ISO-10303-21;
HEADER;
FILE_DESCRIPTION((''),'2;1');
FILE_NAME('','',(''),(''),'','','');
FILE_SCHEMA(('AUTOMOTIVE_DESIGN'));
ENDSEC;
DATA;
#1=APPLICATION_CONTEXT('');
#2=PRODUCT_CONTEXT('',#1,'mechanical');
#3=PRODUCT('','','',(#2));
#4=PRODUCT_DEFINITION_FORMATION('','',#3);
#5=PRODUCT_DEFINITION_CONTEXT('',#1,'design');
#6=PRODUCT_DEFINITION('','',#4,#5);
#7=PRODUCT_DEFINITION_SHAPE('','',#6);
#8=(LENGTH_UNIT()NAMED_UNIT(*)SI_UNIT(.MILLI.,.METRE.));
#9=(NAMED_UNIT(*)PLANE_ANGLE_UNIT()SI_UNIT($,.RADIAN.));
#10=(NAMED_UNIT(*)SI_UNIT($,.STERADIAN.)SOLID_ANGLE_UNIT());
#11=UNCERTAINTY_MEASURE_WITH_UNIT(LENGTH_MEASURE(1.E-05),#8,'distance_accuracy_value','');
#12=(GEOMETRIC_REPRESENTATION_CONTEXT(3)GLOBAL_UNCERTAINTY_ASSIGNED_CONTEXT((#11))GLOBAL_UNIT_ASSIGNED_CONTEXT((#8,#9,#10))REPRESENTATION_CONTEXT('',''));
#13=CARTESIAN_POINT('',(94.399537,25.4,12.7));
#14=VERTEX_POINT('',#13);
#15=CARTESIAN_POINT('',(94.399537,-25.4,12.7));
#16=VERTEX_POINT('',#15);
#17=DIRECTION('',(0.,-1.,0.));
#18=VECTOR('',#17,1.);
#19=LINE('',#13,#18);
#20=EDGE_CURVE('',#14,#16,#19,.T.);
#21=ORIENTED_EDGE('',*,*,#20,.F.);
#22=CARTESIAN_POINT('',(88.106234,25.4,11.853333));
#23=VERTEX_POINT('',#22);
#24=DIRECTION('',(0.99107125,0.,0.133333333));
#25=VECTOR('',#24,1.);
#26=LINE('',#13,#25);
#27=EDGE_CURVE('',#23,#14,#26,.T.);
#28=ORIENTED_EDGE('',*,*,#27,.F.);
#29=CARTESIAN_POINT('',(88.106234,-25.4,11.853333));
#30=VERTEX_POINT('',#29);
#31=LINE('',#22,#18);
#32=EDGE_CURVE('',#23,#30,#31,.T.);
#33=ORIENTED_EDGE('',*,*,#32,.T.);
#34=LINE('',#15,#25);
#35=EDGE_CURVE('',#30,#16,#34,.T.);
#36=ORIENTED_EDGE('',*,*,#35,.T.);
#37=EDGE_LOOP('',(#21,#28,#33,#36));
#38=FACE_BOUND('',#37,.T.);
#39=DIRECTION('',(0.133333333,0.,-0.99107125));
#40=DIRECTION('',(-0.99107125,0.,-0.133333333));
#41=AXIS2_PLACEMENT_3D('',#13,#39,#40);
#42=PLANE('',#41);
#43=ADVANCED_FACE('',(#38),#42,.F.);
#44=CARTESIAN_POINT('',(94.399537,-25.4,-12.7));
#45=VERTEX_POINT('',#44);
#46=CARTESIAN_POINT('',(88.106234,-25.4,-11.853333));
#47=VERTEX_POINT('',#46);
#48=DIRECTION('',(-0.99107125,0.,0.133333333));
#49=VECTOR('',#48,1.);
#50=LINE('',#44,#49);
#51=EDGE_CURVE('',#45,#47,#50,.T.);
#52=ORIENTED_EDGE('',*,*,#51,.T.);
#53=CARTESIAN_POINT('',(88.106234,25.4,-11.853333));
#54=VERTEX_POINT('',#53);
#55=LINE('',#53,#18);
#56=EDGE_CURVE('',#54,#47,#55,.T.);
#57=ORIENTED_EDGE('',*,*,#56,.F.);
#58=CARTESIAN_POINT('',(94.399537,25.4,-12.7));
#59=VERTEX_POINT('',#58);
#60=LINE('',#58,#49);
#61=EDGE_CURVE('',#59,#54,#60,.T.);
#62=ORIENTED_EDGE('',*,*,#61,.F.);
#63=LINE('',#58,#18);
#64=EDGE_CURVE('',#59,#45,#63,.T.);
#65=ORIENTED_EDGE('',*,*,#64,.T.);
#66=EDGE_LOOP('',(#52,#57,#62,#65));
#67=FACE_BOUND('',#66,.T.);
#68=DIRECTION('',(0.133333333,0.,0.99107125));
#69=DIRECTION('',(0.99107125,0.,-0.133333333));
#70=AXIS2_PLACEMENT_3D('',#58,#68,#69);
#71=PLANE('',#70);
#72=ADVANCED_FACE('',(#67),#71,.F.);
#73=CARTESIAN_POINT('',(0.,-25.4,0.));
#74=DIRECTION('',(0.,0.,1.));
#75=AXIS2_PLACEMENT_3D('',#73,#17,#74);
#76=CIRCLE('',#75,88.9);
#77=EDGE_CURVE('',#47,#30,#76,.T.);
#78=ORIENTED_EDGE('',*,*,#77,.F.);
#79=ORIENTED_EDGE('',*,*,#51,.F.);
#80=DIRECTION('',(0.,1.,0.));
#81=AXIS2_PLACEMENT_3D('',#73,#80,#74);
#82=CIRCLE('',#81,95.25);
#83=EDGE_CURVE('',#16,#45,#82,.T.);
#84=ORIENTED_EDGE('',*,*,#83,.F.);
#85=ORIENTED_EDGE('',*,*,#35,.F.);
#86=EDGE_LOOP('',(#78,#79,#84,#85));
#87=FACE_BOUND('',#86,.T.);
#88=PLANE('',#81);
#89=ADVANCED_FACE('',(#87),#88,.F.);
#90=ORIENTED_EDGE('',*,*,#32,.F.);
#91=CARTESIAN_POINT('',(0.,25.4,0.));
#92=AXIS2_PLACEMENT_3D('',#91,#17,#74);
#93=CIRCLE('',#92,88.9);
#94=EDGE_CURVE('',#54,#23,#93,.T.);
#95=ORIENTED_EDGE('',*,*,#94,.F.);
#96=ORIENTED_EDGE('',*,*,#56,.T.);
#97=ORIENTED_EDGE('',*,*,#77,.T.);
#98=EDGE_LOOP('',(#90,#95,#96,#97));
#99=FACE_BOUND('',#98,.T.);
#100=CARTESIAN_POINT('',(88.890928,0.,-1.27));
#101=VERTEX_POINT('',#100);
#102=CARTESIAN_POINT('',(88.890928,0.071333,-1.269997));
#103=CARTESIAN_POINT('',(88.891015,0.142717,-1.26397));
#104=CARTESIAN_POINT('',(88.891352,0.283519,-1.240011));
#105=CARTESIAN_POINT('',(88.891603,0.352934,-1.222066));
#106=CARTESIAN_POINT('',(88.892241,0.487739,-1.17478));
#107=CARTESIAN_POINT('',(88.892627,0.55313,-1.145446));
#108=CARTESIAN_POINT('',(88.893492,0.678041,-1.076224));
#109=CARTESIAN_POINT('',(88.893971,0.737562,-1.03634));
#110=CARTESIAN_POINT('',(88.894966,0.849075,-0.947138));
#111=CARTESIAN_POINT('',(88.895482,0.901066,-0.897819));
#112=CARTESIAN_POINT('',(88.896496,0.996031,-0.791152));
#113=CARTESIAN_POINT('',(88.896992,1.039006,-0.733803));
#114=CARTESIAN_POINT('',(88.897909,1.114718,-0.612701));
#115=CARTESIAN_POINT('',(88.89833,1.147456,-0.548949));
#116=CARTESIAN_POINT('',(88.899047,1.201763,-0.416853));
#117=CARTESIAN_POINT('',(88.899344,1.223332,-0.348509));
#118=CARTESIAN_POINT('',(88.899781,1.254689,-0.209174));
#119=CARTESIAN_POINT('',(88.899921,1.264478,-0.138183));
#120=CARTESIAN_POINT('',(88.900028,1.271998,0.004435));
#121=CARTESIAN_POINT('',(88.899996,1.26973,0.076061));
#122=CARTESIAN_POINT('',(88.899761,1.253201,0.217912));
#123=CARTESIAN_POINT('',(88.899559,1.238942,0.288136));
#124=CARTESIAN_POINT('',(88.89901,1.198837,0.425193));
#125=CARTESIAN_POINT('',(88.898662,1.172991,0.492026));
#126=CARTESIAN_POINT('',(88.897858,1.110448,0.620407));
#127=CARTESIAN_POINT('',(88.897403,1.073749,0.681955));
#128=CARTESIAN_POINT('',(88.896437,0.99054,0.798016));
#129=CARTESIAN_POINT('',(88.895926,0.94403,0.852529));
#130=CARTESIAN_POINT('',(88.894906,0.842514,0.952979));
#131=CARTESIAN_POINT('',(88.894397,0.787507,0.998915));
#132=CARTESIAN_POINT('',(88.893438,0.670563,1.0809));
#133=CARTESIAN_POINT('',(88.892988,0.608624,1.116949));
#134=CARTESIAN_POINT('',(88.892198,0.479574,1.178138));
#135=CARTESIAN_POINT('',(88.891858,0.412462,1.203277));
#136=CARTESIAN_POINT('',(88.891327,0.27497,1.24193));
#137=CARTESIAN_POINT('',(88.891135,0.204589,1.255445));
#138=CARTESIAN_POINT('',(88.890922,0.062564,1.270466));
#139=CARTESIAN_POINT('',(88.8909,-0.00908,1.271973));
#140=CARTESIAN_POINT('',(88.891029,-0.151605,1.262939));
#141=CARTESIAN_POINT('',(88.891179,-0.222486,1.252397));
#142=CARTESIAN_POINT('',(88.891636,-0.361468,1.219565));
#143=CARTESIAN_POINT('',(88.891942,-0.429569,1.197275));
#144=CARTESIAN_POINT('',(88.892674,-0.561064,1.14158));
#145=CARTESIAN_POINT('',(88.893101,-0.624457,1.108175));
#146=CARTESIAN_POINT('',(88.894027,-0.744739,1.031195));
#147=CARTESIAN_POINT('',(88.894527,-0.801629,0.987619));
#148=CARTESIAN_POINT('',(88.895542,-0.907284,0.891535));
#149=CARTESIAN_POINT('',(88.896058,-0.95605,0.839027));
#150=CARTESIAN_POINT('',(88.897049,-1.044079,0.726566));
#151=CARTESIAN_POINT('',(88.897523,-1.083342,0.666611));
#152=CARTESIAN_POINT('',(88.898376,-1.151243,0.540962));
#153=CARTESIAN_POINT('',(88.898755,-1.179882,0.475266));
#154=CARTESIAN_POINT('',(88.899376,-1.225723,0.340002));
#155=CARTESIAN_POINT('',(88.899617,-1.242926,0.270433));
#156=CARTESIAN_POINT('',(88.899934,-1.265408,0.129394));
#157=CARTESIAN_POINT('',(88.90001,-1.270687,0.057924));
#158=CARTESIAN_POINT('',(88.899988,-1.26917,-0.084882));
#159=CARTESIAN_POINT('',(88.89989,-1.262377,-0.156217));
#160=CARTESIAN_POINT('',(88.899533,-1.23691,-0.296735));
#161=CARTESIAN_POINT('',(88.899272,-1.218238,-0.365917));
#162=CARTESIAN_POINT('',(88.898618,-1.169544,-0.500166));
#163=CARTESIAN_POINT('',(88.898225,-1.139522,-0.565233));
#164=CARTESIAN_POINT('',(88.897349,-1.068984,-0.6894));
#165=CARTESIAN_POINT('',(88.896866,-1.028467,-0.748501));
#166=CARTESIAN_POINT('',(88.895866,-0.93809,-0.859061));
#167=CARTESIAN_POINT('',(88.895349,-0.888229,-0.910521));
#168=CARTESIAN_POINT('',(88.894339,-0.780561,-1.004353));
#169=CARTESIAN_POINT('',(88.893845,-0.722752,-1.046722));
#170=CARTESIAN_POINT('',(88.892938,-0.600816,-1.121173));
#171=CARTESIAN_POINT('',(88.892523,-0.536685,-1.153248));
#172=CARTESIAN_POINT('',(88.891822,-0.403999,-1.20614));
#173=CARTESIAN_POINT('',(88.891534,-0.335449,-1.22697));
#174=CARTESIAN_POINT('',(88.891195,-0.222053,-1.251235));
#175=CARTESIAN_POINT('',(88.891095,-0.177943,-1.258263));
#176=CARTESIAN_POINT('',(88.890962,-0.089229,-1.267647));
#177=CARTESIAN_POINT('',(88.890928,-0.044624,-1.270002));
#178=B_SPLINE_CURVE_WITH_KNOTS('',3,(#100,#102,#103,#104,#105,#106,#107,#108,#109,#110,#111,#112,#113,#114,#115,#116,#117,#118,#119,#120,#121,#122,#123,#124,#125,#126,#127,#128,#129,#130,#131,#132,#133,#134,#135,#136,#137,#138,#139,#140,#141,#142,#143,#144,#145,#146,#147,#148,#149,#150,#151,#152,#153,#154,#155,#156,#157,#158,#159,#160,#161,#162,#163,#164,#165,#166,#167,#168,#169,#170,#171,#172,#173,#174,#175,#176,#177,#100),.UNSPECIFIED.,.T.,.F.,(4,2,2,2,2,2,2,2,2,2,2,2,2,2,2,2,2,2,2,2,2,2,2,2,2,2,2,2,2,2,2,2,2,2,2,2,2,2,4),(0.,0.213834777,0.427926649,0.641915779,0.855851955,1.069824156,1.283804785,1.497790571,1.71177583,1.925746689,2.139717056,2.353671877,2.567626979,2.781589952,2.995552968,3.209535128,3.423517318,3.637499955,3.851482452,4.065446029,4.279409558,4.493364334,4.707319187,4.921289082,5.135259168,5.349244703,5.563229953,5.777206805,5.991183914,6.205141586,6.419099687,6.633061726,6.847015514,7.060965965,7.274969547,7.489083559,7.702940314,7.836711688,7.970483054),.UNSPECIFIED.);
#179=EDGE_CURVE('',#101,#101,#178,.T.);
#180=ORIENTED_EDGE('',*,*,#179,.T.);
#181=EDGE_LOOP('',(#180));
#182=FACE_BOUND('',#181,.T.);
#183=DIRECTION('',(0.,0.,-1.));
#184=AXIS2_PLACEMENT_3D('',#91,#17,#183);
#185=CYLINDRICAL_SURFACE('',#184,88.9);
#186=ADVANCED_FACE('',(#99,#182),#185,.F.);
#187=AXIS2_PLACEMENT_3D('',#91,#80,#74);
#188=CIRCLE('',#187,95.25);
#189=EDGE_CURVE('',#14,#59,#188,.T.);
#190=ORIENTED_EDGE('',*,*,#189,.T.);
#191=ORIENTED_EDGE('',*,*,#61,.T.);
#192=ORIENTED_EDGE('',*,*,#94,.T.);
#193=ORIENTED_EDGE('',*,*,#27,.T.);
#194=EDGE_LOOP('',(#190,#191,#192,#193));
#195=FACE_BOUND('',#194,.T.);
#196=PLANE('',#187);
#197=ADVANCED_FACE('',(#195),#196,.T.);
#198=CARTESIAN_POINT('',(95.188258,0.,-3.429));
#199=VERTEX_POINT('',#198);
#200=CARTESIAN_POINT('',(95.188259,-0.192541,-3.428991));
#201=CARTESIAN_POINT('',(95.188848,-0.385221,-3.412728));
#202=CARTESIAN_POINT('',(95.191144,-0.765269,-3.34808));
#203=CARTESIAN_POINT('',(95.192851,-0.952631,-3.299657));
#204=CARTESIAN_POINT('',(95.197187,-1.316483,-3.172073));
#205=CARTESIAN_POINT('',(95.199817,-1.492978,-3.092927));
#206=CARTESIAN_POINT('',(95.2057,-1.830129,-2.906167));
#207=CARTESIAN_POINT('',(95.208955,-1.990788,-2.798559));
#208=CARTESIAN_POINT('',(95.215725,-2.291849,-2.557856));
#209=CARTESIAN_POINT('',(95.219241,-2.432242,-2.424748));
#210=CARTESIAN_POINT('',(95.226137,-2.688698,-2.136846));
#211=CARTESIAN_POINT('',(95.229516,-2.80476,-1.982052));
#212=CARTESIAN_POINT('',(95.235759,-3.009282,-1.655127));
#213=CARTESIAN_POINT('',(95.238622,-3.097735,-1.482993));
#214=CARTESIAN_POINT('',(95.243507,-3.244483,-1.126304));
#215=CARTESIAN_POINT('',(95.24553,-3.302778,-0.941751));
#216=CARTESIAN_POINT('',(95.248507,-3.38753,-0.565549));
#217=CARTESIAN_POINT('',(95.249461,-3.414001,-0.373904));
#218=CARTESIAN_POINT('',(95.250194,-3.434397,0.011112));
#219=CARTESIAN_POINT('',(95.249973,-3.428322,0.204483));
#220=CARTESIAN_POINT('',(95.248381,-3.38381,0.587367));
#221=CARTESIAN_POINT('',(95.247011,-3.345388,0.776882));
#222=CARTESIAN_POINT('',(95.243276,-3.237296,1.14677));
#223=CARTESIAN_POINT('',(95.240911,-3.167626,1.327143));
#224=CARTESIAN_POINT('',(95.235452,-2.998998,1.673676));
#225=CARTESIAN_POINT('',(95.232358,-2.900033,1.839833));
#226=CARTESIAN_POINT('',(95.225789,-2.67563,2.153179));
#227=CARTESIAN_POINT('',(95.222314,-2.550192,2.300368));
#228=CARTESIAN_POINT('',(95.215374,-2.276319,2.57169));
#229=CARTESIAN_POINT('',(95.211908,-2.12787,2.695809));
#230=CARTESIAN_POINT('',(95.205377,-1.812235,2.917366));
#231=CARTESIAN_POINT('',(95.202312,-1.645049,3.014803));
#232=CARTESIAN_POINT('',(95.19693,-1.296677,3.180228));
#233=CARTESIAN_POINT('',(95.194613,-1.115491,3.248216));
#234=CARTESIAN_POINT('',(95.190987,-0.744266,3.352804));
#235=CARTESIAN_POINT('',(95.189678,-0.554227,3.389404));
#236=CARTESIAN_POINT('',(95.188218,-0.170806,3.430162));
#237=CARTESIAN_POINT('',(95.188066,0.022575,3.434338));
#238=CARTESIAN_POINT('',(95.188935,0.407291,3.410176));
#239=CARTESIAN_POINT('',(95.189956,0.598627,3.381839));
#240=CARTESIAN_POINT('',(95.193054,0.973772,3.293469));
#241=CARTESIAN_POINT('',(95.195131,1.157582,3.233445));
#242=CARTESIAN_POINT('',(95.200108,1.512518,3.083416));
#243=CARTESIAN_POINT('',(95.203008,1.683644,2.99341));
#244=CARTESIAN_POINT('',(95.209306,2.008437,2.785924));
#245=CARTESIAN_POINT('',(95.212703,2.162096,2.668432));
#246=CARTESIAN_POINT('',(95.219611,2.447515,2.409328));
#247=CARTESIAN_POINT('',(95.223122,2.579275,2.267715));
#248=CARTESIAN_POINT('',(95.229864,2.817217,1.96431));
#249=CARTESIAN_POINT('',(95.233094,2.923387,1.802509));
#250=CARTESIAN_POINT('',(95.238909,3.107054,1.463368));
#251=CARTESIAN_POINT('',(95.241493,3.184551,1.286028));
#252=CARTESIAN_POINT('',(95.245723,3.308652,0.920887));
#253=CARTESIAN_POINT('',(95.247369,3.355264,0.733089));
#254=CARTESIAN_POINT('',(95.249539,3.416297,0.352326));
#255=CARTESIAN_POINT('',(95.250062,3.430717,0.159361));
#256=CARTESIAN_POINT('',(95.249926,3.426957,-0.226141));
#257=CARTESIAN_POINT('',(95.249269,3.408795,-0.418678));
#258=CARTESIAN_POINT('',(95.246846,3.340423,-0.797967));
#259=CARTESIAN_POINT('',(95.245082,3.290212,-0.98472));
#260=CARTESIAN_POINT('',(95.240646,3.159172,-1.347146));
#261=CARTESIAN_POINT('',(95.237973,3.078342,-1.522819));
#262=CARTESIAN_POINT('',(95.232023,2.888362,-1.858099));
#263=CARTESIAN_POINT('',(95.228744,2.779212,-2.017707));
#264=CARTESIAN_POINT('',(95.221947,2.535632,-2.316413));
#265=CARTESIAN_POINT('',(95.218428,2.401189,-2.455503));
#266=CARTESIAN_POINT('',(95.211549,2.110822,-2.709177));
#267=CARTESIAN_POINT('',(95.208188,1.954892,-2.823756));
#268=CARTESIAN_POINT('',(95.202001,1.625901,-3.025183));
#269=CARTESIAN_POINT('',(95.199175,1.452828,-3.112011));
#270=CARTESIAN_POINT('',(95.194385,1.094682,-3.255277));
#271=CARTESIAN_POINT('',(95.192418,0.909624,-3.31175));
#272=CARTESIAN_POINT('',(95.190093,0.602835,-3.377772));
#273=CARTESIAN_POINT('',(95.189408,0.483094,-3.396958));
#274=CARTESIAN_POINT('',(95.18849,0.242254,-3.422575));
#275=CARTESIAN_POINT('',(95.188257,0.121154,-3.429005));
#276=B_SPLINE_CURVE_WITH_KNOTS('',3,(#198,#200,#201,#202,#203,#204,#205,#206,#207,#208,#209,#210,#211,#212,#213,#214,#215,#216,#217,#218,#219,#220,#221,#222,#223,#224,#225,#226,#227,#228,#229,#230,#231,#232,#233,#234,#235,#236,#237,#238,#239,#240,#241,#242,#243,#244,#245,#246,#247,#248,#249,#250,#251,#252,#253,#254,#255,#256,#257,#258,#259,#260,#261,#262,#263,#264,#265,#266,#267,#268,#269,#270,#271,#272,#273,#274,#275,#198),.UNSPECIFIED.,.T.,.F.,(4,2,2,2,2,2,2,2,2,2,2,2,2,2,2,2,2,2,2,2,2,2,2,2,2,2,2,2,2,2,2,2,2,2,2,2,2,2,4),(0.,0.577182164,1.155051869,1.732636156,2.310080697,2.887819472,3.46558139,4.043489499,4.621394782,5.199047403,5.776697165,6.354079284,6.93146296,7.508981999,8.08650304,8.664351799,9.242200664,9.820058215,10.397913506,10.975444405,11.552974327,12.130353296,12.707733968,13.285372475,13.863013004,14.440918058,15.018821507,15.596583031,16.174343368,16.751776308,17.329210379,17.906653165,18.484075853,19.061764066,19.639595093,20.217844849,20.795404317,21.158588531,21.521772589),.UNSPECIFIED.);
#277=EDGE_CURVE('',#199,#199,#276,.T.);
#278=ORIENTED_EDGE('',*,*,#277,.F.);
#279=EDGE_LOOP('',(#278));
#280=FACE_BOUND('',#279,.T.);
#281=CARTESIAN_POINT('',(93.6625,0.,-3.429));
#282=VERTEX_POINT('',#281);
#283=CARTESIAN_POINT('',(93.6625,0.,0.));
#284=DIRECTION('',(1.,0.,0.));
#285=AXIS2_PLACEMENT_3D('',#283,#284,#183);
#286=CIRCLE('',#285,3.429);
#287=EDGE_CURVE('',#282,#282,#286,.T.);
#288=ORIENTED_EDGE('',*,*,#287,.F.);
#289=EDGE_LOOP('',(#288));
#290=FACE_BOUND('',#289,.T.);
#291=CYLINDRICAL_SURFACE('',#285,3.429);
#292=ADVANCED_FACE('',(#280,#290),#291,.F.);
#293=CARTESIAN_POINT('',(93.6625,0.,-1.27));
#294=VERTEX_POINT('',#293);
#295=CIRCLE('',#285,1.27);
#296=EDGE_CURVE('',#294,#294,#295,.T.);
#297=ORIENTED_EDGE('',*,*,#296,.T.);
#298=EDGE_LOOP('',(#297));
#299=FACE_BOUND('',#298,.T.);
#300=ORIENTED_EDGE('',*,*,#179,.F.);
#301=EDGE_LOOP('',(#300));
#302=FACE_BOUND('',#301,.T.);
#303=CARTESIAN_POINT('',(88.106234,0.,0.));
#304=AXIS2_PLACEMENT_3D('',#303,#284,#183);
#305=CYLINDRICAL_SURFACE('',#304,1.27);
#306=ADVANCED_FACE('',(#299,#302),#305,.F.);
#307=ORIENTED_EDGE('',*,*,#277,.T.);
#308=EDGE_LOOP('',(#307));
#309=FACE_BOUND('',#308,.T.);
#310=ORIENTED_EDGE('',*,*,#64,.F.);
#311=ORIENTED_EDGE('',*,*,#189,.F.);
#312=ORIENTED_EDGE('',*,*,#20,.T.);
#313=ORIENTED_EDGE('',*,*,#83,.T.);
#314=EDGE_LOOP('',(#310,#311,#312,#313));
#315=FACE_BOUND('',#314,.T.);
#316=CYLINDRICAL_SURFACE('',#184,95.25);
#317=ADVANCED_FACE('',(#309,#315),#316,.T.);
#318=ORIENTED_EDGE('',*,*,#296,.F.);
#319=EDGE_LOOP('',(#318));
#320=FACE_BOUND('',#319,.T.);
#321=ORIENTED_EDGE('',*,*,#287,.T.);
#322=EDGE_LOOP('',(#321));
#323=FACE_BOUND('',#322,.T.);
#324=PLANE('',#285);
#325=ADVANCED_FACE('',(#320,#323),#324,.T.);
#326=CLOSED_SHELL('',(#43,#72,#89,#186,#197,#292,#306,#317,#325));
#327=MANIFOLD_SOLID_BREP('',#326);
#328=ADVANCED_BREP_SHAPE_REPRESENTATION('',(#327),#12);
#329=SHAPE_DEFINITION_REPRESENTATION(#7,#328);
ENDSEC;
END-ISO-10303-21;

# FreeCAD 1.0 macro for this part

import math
import FreeCAD as App
import Part
import Sketcher
Q = App.Units.Quantity

doc = App.newDocument("Part")
body = doc.addObject("PartDesign::Body", "Body")

sketch1 = body.newObject("Sketcher::SketchObject", "Sketch")
sketch1.AttachmentSupport = (doc.getObject("XZ_Plane"), [""])
sketch1.MapMode = "FlatFace"
sketch1.addGeometry([
    Part.LineSegment(App.Vector(94, -13, 0), App.Vector(88, -12, 0)),
    Part.ArcOfCircle(Part.Circle(App.Vector(0, 0, 0), App.Vector(0, 0, 1), 89), math.radians(-7.66), math.radians(7.66)),
    Part.LineSegment(App.Vector(88, 12, 0), App.Vector(94, 13, 0)),
    Part.ArcOfCircle(Part.Circle(App.Vector(0, 0, 0), App.Vector(0, 0, 1), 95), math.radians(-7.66), math.radians(7.66)),
], False)
sketch1.addConstraint([
    Sketcher.Constraint("Coincident", 0, 2, 1, 1),
    Sketcher.Constraint("Coincident", 1, 2, 2, 1),
    Sketcher.Constraint("Coincident", 2, 2, 3, 2),
    Sketcher.Constraint("Coincident", 3, 1, 0, 1),
    Sketcher.Constraint("Coincident", 1, 3, -1, 1),
    Sketcher.Constraint("Coincident", 3, 3, -1, 1),
    Sketcher.Constraint("Vertical", 0, 2, 1, 2),
    Sketcher.Constraint("Vertical", 2, 2, 3, 1),
    Sketcher.Constraint("Radius", 1, Q("3.5 in")),
    Sketcher.Constraint("Radius", 3, Q("3.75 in")),
    Sketcher.Constraint("DistanceY", 3, 1, 2, 2, Q("1 in")),
    Sketcher.Constraint("DistanceX", -1, 1, 0, 2, Q("88.106234 mm")),
])
pad1 = body.newObject("PartDesign::Pad", "Pad")
pad1.Profile = sketch1
pad1.Length = Q("2 in")
pad1.Midplane = True

sketch2 = body.newObject("Sketcher::SketchObject", "Sketch001")
sketch2.AttachmentSupport = (doc.getObject("YZ_Plane"), [""])
sketch2.MapMode = "FlatFace"
sketch2.AttachmentOffset = App.Placement(App.Vector(0, 0, 3.75 * 25.4), App.Rotation())
sketch2.addGeometry(Part.Circle(App.Vector(0, 0, 0), App.Vector(0, 0, 1), 3.4), False)
sketch2.addConstraint([
    Sketcher.Constraint("Coincident", 0, 3, -1, 1),
    Sketcher.Constraint("Diameter", 0, Q("0.27 in")),
])
pocket1 = body.newObject("PartDesign::Pocket", "Pocket")
pocket1.Profile = sketch2
pocket1.Length = Q("0.0625 in")

sketch3 = body.newObject("Sketcher::SketchObject", "Sketch002")
sketch3.AttachmentSupport = (doc.getObject("YZ_Plane"), [""])
sketch3.MapMode = "FlatFace"
sketch3.AttachmentOffset = App.Placement(App.Vector(0, 0, 3.6875 * 25.4), App.Rotation())
sketch3.addGeometry(Part.Circle(App.Vector(0, 0, 0), App.Vector(0, 0, 1), 1.3), False)
sketch3.addConstraint([
    Sketcher.Constraint("Coincident", 0, 3, -1, 1),
    Sketcher.Constraint("Diameter", 0, Q("0.1 in")),
])
pocket2 = body.newObject("PartDesign::Pocket", "Pocket001")
pocket2.Profile = sketch3
pocket2.Type = "ThroughAll"

doc.recompute()
